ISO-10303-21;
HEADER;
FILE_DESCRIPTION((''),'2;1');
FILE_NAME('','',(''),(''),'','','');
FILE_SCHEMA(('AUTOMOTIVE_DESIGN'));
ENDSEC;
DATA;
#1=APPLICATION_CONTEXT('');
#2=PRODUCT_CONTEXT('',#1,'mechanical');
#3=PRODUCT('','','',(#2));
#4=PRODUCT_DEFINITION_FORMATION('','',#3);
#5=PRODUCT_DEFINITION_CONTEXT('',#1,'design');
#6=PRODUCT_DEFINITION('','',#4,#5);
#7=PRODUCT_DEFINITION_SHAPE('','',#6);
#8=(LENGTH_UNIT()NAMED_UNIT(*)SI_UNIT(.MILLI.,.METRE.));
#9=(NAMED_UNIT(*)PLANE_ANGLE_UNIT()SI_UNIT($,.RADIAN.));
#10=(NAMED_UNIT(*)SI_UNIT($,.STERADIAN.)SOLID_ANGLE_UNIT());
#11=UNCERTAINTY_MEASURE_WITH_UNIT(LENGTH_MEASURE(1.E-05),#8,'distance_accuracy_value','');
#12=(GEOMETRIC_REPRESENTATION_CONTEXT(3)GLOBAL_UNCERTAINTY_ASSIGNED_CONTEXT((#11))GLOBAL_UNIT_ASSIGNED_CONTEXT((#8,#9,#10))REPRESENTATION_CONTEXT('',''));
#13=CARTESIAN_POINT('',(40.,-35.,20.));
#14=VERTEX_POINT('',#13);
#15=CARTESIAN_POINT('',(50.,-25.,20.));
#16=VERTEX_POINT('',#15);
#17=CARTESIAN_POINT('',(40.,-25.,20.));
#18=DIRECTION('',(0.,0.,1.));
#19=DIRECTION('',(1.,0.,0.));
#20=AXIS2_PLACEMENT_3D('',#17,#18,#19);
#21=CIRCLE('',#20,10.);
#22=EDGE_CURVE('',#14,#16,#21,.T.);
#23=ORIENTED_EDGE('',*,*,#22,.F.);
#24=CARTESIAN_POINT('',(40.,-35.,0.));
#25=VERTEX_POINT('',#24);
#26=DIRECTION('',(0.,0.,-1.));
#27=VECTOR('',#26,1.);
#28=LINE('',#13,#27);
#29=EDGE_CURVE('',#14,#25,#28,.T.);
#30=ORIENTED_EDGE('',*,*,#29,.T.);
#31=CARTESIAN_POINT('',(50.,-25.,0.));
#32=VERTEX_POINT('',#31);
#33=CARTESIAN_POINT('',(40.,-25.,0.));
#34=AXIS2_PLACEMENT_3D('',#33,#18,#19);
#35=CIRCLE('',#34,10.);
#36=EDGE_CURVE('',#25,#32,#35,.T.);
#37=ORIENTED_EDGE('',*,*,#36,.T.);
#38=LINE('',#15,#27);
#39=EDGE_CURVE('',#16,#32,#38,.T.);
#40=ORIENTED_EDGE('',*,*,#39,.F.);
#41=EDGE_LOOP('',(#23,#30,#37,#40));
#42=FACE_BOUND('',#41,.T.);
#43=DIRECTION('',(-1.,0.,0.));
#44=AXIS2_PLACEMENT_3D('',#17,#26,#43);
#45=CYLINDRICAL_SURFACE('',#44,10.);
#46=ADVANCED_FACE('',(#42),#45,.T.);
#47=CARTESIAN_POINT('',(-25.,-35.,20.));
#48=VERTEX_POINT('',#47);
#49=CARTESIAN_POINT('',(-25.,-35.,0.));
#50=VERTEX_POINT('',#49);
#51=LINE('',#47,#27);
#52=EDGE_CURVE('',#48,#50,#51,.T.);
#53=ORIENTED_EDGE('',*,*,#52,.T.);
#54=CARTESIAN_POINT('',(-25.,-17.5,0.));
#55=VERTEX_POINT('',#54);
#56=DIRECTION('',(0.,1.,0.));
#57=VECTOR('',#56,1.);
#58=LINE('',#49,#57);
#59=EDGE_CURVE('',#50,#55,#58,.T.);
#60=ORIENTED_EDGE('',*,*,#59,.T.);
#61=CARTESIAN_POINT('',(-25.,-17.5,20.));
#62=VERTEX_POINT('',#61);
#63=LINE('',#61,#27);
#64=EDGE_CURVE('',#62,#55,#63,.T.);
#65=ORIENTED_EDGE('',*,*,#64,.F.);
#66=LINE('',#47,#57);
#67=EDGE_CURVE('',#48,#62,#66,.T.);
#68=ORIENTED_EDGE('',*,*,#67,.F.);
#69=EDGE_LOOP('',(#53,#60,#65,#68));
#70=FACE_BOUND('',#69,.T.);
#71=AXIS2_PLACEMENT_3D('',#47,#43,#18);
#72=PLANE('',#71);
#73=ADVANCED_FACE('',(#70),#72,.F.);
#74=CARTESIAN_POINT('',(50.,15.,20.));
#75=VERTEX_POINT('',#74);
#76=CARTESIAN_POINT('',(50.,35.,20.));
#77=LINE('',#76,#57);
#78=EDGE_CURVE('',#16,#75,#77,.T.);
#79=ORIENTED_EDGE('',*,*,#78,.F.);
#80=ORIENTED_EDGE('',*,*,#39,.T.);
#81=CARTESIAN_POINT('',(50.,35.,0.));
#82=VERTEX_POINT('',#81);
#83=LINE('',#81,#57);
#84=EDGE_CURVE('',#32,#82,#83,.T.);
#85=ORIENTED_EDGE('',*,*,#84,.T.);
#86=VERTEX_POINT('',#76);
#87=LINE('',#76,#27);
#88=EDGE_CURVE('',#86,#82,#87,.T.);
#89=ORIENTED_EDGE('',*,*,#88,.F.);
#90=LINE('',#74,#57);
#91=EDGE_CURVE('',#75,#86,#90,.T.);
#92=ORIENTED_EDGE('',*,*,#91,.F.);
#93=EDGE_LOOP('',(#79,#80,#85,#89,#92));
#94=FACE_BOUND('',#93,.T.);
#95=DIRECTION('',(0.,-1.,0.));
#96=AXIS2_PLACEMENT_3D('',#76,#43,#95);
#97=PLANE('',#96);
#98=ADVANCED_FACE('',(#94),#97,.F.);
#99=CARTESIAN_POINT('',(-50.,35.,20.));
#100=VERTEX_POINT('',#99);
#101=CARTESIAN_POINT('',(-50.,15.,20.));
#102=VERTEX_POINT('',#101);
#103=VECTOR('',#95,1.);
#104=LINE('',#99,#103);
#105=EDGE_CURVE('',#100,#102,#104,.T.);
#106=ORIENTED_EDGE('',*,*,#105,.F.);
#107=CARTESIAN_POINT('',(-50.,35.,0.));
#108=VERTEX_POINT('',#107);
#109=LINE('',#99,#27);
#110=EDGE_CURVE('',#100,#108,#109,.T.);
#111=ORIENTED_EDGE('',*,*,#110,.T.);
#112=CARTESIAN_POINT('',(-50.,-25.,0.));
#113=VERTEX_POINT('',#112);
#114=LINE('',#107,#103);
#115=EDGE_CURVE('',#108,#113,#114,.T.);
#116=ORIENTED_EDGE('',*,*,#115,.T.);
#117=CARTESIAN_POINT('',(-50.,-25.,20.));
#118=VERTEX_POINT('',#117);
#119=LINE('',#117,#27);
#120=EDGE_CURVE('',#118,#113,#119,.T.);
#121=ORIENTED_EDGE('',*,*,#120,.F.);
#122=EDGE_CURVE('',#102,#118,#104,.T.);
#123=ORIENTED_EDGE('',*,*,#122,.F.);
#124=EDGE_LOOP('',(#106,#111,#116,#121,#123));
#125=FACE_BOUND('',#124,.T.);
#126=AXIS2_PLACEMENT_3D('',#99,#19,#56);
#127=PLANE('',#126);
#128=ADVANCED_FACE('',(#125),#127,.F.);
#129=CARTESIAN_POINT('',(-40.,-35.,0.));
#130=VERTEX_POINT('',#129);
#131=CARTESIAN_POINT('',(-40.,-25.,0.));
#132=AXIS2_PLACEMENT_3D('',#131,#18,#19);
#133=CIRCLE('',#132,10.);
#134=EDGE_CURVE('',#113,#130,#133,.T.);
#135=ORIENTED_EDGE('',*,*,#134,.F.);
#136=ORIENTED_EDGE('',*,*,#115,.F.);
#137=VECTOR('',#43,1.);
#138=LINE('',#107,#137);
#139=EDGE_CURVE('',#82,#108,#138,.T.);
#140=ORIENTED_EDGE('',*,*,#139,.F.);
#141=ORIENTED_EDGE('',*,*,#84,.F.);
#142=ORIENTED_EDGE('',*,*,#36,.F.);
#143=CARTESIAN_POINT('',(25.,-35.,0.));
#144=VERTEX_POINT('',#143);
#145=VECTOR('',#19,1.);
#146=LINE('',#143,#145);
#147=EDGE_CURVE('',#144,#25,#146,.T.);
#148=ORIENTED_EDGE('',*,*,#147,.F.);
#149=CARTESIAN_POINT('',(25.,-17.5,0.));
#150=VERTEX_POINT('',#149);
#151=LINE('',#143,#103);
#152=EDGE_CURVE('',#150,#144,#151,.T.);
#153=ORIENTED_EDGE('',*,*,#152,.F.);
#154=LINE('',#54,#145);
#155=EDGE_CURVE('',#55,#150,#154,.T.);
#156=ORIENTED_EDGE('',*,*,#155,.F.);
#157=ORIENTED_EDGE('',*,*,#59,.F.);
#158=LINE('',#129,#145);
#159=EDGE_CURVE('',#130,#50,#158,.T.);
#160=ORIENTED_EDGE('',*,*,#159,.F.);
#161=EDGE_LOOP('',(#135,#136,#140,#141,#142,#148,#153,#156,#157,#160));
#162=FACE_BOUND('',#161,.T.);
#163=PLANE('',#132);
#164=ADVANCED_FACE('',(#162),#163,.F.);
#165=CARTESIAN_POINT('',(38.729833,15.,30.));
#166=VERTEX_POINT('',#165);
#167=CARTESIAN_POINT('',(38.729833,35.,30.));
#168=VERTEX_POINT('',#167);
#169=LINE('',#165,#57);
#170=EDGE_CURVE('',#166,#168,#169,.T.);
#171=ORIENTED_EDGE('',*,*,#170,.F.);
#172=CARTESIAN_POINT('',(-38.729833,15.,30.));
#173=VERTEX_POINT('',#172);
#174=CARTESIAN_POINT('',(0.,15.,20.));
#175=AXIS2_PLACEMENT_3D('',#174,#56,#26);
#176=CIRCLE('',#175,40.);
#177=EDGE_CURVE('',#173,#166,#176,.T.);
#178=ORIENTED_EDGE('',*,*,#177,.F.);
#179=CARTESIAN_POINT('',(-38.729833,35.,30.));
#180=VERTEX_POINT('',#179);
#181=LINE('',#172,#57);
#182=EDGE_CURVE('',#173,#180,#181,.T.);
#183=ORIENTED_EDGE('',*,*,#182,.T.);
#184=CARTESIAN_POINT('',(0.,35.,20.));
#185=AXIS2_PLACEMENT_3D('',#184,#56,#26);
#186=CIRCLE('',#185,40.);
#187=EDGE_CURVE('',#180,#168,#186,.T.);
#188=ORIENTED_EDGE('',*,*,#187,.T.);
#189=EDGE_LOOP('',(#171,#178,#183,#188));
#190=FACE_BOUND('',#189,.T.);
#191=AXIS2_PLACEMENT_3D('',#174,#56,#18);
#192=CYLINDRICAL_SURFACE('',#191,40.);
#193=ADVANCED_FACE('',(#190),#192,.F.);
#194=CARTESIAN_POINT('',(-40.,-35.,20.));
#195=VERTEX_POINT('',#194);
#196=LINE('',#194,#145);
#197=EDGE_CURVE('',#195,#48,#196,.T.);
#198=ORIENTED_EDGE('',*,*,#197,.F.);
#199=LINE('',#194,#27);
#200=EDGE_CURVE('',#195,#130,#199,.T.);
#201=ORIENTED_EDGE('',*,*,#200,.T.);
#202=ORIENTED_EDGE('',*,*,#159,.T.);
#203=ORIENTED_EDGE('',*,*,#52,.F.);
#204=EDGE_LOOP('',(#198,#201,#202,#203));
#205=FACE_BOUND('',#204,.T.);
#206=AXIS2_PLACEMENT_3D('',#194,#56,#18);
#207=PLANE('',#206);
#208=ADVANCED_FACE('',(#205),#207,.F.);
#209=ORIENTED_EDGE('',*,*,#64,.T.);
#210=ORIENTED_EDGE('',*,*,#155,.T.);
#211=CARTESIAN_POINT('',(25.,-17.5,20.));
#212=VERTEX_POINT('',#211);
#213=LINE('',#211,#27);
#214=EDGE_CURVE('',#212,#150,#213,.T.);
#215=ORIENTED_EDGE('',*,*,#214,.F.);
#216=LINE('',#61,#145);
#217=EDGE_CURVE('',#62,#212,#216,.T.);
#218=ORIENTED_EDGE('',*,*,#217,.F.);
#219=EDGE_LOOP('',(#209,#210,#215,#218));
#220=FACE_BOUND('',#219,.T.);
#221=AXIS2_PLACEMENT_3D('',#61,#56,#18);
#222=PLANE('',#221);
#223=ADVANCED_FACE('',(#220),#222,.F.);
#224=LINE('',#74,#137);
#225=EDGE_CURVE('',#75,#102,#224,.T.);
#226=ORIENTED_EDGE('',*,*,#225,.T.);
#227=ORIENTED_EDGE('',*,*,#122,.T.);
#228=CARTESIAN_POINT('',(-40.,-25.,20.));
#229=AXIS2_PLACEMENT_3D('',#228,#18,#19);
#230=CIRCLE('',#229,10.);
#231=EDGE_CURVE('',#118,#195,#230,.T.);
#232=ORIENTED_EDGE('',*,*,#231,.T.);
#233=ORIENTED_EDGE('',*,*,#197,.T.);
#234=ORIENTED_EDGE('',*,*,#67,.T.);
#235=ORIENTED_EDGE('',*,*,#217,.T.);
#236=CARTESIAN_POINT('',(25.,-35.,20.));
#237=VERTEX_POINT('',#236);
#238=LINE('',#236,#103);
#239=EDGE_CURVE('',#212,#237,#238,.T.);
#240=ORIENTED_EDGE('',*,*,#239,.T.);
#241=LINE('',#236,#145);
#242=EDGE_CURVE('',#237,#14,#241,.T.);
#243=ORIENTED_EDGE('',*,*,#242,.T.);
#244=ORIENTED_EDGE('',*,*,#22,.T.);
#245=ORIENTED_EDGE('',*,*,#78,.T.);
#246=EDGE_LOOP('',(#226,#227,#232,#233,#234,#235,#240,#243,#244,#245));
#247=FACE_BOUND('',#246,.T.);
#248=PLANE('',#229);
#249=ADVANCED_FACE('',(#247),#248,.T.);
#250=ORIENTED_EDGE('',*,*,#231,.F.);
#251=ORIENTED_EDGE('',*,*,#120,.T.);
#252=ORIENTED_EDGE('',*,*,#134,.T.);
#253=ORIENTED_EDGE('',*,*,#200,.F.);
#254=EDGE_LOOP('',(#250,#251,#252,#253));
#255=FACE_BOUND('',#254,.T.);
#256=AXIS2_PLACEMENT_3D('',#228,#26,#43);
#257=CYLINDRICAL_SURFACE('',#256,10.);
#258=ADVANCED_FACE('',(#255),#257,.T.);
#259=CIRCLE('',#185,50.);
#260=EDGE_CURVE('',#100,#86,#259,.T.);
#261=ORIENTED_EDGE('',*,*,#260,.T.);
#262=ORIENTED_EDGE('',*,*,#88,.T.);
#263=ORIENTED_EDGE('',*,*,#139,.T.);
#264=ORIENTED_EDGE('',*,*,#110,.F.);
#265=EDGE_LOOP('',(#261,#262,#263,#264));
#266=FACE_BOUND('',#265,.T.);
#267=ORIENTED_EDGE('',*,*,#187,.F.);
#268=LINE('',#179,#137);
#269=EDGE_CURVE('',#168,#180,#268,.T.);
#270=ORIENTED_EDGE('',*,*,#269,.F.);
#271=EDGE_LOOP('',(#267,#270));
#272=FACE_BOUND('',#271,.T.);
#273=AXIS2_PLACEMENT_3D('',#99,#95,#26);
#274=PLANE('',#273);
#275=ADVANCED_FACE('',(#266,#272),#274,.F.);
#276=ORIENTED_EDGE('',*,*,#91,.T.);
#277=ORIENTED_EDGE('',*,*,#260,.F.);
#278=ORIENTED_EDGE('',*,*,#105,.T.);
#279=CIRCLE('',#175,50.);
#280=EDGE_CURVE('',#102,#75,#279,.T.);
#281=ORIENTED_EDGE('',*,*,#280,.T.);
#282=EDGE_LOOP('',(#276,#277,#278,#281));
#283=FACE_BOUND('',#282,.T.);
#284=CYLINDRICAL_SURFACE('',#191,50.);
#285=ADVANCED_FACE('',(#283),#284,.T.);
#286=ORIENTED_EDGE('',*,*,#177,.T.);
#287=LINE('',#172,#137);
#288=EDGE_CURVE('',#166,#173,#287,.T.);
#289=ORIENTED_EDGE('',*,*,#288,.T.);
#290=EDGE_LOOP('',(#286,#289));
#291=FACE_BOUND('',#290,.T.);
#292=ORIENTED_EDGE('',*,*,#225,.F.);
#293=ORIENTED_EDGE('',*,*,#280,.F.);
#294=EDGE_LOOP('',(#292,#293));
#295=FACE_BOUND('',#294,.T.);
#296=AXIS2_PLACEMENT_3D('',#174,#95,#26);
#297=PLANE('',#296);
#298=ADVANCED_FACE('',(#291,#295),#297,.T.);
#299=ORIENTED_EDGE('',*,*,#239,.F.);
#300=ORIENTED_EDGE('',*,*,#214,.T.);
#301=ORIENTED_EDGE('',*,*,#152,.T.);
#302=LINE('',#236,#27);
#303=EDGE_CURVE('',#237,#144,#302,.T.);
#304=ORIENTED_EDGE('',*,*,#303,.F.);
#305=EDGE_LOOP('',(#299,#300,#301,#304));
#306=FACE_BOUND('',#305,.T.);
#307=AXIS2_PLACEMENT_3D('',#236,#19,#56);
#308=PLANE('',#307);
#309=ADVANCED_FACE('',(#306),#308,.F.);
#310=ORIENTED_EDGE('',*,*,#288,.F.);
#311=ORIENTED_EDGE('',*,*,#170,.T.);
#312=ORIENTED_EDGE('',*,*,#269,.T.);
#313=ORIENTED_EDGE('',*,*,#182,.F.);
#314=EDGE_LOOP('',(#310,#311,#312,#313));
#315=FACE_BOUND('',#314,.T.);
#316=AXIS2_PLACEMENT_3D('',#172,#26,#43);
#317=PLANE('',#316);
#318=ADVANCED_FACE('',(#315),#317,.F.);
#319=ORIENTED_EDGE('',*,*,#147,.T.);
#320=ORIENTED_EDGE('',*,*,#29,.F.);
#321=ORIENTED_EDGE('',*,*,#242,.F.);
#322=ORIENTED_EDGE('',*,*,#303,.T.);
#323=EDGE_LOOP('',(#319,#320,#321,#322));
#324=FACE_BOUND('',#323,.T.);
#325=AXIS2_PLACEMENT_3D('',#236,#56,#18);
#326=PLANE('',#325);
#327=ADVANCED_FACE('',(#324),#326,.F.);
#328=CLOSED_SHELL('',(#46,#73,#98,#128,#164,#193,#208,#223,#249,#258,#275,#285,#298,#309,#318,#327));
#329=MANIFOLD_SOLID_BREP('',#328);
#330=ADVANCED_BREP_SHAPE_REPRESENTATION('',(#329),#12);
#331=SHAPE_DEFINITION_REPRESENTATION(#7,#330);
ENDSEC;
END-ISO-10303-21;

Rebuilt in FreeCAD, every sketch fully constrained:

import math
import FreeCAD as App
import Part
import Sketcher
from FreeCAD import Vector
Q = App.Units.Quantity

doc = App.newDocument("Part")
body = doc.addObject("PartDesign::Body", "Body")

# Sketch on XY plane
sketch1 = body.newObject("Sketcher::SketchObject", "Sketch")
sketch1.AttachmentSupport = (doc.getObject("XY_Plane"), [""])
sketch1.MapMode = "FlatFace"
sketch1.addGeometry(Part.LineSegment(Vector(25, -35, 0), Vector(40, -35, 0)), False)
sketch1.addGeometry(Part.ArcOfCircle(Part.Circle(Vector(40, -25, 0), Vector(0, 0, 1), 10), math.radians(-90), math.radians(0)), False)
sketch1.addGeometry(Part.LineSegment(Vector(50, -25, 0), Vector(50, 35, 0)), False)
sketch1.addGeometry(Part.LineSegment(Vector(50, 35, 0), Vector(-50, 35, 0)), False)
sketch1.addGeometry(Part.LineSegment(Vector(-50, 35, 0), Vector(-50, -25, 0)), False)
sketch1.addGeometry(Part.ArcOfCircle(Part.Circle(Vector(-40, -25, 0), Vector(0, 0, 1), 10), math.radians(180), math.radians(270)), False)
sketch1.addGeometry(Part.LineSegment(Vector(-40, -35, 0), Vector(-25, -35, 0)), False)
sketch1.addGeometry(Part.LineSegment(Vector(-25, -35, 0), Vector(-25, -17.5, 0)), False)
sketch1.addGeometry(Part.LineSegment(Vector(-25, -17.5, 0), Vector(25, -17.5, 0)), False)
sketch1.addGeometry(Part.LineSegment(Vector(25, -17.5, 0), Vector(25, -35, 0)), False)
sketch1.addConstraint(Sketcher.Constraint("Tangent", 0, 2, 1, 1))
sketch1.addConstraint(Sketcher.Constraint("Tangent", 1, 2, 2, 1))
sketch1.addConstraint(Sketcher.Constraint("Coincident", 2, 2, 3, 1))
sketch1.addConstraint(Sketcher.Constraint("Coincident", 3, 2, 4, 1))
sketch1.addConstraint(Sketcher.Constraint("Tangent", 4, 2, 5, 1))
sketch1.addConstraint(Sketcher.Constraint("Tangent", 5, 2, 6, 1))
sketch1.addConstraint(Sketcher.Constraint("Coincident", 6, 2, 7, 1))
sketch1.addConstraint(Sketcher.Constraint("Coincident", 7, 2, 8, 1))
sketch1.addConstraint(Sketcher.Constraint("Coincident", 8, 2, 9, 1))
sketch1.addConstraint(Sketcher.Constraint("Coincident", 9, 2, 0, 1))
sketch1.addConstraint(Sketcher.Constraint("Horizontal", 0))
sketch1.addConstraint(Sketcher.Constraint("Vertical", 2))
sketch1.addConstraint(Sketcher.Constraint("Horizontal", 3))
sketch1.addConstraint(Sketcher.Constraint("Vertical", 4))
sketch1.addConstraint(Sketcher.Constraint("Horizontal", 6))
sketch1.addConstraint(Sketcher.Constraint("Vertical", 7))
sketch1.addConstraint(Sketcher.Constraint("Horizontal", 8))
sketch1.addConstraint(Sketcher.Constraint("Vertical", 9))
sketch1.addConstraint(Sketcher.Constraint("Equal", 1, 5))
sketch1.addConstraint(Sketcher.Constraint("Symmetric", 1, 3, 5, 3, -2))
sketch1.addConstraint(Sketcher.Constraint("Equal", 0, 6))
sketch1.addConstraint(Sketcher.Constraint("Radius", 1, Q("10 mm")))
sketch1.addConstraint(Sketcher.Constraint("DistanceX", 0, 1, 0, 2, Q("15 mm")))
sketch1.addConstraint(Sketcher.Constraint("DistanceX", 3, 2, 3, 1, Q("100 mm")))
sketch1.addConstraint(Sketcher.Constraint("DistanceY", 2, 1, 2, 2, Q("60 mm")))
sketch1.addConstraint(Sketcher.Constraint("DistanceY", 7, 1, 7, 2, Q("17.5 mm")))
sketch1.addConstraint(Sketcher.Constraint("DistanceY", 1, 3, -1, 1, Q("25 mm")))
pad1 = body.newObject("PartDesign::Pad", "Pad")
pad1.Profile = sketch1
pad1.Length = 20

# Sketch on XZ plane
sketch2 = body.newObject("Sketcher::SketchObject", "Sketch001")
sketch2.AttachmentSupport = (doc.getObject("XZ_Plane"), [""])
sketch2.MapMode = "FlatFace"
sketch2.AttachmentOffset = App.Placement(Vector(0, 0, -35), App.Rotation())
sketch2.addGeometry(Part.LineSegment(Vector(50, 20, 0), Vector(-50, 20, 0)), False)
sketch2.addGeometry(Part.ArcOfCircle(Part.Circle(Vector(0, 20, 0), Vector(0, 0, 1), 50), math.radians(0), math.radians(180)), False)
sketch2.addGeometry(Part.ArcOfCircle(Part.Circle(Vector(0, 20, 0), Vector(0, 0, 1), 40), math.radians(14.477512), math.radians(165.522488)), False)
sketch2.addGeometry(Part.LineSegment(Vector(-38.729833, 30, 0), Vector(38.729833, 30, 0)), False)
sketch2.addConstraint(Sketcher.Constraint("Coincident", 0, 1, 1, 1))
sketch2.addConstraint(Sketcher.Constraint("Coincident", 1, 2, 0, 2))
sketch2.addConstraint(Sketcher.Constraint("Coincident", 2, 1, 3, 2))
sketch2.addConstraint(Sketcher.Constraint("Coincident", 3, 1, 2, 2))
sketch2.addConstraint(Sketcher.Constraint("Horizontal", 0))
sketch2.addConstraint(Sketcher.Constraint("Horizontal", 3))
sketch2.addConstraint(Sketcher.Constraint("Coincident", 2, 3, 1, 3))
sketch2.addConstraint(Sketcher.Constraint("PointOnObject", 1, 3, -2))
sketch2.addConstraint(Sketcher.Constraint("Horizontal", 2, 3, 0, 1))
sketch2.addConstraint(Sketcher.Constraint("Radius", 1, Q("50 mm")))
sketch2.addConstraint(Sketcher.Constraint("Radius", 2, Q("40 mm")))
sketch2.addConstraint(Sketcher.Constraint("DistanceY", -1, 1, 1, 3, Q("20 mm")))
sketch2.addConstraint(Sketcher.Constraint("DistanceY", -1, 1, 2, 1, Q("30 mm")))
pad2 = body.newObject("PartDesign::Pad", "Pad001")
pad2.Profile = sketch2
pad2.Length = 20

doc.recompute()
